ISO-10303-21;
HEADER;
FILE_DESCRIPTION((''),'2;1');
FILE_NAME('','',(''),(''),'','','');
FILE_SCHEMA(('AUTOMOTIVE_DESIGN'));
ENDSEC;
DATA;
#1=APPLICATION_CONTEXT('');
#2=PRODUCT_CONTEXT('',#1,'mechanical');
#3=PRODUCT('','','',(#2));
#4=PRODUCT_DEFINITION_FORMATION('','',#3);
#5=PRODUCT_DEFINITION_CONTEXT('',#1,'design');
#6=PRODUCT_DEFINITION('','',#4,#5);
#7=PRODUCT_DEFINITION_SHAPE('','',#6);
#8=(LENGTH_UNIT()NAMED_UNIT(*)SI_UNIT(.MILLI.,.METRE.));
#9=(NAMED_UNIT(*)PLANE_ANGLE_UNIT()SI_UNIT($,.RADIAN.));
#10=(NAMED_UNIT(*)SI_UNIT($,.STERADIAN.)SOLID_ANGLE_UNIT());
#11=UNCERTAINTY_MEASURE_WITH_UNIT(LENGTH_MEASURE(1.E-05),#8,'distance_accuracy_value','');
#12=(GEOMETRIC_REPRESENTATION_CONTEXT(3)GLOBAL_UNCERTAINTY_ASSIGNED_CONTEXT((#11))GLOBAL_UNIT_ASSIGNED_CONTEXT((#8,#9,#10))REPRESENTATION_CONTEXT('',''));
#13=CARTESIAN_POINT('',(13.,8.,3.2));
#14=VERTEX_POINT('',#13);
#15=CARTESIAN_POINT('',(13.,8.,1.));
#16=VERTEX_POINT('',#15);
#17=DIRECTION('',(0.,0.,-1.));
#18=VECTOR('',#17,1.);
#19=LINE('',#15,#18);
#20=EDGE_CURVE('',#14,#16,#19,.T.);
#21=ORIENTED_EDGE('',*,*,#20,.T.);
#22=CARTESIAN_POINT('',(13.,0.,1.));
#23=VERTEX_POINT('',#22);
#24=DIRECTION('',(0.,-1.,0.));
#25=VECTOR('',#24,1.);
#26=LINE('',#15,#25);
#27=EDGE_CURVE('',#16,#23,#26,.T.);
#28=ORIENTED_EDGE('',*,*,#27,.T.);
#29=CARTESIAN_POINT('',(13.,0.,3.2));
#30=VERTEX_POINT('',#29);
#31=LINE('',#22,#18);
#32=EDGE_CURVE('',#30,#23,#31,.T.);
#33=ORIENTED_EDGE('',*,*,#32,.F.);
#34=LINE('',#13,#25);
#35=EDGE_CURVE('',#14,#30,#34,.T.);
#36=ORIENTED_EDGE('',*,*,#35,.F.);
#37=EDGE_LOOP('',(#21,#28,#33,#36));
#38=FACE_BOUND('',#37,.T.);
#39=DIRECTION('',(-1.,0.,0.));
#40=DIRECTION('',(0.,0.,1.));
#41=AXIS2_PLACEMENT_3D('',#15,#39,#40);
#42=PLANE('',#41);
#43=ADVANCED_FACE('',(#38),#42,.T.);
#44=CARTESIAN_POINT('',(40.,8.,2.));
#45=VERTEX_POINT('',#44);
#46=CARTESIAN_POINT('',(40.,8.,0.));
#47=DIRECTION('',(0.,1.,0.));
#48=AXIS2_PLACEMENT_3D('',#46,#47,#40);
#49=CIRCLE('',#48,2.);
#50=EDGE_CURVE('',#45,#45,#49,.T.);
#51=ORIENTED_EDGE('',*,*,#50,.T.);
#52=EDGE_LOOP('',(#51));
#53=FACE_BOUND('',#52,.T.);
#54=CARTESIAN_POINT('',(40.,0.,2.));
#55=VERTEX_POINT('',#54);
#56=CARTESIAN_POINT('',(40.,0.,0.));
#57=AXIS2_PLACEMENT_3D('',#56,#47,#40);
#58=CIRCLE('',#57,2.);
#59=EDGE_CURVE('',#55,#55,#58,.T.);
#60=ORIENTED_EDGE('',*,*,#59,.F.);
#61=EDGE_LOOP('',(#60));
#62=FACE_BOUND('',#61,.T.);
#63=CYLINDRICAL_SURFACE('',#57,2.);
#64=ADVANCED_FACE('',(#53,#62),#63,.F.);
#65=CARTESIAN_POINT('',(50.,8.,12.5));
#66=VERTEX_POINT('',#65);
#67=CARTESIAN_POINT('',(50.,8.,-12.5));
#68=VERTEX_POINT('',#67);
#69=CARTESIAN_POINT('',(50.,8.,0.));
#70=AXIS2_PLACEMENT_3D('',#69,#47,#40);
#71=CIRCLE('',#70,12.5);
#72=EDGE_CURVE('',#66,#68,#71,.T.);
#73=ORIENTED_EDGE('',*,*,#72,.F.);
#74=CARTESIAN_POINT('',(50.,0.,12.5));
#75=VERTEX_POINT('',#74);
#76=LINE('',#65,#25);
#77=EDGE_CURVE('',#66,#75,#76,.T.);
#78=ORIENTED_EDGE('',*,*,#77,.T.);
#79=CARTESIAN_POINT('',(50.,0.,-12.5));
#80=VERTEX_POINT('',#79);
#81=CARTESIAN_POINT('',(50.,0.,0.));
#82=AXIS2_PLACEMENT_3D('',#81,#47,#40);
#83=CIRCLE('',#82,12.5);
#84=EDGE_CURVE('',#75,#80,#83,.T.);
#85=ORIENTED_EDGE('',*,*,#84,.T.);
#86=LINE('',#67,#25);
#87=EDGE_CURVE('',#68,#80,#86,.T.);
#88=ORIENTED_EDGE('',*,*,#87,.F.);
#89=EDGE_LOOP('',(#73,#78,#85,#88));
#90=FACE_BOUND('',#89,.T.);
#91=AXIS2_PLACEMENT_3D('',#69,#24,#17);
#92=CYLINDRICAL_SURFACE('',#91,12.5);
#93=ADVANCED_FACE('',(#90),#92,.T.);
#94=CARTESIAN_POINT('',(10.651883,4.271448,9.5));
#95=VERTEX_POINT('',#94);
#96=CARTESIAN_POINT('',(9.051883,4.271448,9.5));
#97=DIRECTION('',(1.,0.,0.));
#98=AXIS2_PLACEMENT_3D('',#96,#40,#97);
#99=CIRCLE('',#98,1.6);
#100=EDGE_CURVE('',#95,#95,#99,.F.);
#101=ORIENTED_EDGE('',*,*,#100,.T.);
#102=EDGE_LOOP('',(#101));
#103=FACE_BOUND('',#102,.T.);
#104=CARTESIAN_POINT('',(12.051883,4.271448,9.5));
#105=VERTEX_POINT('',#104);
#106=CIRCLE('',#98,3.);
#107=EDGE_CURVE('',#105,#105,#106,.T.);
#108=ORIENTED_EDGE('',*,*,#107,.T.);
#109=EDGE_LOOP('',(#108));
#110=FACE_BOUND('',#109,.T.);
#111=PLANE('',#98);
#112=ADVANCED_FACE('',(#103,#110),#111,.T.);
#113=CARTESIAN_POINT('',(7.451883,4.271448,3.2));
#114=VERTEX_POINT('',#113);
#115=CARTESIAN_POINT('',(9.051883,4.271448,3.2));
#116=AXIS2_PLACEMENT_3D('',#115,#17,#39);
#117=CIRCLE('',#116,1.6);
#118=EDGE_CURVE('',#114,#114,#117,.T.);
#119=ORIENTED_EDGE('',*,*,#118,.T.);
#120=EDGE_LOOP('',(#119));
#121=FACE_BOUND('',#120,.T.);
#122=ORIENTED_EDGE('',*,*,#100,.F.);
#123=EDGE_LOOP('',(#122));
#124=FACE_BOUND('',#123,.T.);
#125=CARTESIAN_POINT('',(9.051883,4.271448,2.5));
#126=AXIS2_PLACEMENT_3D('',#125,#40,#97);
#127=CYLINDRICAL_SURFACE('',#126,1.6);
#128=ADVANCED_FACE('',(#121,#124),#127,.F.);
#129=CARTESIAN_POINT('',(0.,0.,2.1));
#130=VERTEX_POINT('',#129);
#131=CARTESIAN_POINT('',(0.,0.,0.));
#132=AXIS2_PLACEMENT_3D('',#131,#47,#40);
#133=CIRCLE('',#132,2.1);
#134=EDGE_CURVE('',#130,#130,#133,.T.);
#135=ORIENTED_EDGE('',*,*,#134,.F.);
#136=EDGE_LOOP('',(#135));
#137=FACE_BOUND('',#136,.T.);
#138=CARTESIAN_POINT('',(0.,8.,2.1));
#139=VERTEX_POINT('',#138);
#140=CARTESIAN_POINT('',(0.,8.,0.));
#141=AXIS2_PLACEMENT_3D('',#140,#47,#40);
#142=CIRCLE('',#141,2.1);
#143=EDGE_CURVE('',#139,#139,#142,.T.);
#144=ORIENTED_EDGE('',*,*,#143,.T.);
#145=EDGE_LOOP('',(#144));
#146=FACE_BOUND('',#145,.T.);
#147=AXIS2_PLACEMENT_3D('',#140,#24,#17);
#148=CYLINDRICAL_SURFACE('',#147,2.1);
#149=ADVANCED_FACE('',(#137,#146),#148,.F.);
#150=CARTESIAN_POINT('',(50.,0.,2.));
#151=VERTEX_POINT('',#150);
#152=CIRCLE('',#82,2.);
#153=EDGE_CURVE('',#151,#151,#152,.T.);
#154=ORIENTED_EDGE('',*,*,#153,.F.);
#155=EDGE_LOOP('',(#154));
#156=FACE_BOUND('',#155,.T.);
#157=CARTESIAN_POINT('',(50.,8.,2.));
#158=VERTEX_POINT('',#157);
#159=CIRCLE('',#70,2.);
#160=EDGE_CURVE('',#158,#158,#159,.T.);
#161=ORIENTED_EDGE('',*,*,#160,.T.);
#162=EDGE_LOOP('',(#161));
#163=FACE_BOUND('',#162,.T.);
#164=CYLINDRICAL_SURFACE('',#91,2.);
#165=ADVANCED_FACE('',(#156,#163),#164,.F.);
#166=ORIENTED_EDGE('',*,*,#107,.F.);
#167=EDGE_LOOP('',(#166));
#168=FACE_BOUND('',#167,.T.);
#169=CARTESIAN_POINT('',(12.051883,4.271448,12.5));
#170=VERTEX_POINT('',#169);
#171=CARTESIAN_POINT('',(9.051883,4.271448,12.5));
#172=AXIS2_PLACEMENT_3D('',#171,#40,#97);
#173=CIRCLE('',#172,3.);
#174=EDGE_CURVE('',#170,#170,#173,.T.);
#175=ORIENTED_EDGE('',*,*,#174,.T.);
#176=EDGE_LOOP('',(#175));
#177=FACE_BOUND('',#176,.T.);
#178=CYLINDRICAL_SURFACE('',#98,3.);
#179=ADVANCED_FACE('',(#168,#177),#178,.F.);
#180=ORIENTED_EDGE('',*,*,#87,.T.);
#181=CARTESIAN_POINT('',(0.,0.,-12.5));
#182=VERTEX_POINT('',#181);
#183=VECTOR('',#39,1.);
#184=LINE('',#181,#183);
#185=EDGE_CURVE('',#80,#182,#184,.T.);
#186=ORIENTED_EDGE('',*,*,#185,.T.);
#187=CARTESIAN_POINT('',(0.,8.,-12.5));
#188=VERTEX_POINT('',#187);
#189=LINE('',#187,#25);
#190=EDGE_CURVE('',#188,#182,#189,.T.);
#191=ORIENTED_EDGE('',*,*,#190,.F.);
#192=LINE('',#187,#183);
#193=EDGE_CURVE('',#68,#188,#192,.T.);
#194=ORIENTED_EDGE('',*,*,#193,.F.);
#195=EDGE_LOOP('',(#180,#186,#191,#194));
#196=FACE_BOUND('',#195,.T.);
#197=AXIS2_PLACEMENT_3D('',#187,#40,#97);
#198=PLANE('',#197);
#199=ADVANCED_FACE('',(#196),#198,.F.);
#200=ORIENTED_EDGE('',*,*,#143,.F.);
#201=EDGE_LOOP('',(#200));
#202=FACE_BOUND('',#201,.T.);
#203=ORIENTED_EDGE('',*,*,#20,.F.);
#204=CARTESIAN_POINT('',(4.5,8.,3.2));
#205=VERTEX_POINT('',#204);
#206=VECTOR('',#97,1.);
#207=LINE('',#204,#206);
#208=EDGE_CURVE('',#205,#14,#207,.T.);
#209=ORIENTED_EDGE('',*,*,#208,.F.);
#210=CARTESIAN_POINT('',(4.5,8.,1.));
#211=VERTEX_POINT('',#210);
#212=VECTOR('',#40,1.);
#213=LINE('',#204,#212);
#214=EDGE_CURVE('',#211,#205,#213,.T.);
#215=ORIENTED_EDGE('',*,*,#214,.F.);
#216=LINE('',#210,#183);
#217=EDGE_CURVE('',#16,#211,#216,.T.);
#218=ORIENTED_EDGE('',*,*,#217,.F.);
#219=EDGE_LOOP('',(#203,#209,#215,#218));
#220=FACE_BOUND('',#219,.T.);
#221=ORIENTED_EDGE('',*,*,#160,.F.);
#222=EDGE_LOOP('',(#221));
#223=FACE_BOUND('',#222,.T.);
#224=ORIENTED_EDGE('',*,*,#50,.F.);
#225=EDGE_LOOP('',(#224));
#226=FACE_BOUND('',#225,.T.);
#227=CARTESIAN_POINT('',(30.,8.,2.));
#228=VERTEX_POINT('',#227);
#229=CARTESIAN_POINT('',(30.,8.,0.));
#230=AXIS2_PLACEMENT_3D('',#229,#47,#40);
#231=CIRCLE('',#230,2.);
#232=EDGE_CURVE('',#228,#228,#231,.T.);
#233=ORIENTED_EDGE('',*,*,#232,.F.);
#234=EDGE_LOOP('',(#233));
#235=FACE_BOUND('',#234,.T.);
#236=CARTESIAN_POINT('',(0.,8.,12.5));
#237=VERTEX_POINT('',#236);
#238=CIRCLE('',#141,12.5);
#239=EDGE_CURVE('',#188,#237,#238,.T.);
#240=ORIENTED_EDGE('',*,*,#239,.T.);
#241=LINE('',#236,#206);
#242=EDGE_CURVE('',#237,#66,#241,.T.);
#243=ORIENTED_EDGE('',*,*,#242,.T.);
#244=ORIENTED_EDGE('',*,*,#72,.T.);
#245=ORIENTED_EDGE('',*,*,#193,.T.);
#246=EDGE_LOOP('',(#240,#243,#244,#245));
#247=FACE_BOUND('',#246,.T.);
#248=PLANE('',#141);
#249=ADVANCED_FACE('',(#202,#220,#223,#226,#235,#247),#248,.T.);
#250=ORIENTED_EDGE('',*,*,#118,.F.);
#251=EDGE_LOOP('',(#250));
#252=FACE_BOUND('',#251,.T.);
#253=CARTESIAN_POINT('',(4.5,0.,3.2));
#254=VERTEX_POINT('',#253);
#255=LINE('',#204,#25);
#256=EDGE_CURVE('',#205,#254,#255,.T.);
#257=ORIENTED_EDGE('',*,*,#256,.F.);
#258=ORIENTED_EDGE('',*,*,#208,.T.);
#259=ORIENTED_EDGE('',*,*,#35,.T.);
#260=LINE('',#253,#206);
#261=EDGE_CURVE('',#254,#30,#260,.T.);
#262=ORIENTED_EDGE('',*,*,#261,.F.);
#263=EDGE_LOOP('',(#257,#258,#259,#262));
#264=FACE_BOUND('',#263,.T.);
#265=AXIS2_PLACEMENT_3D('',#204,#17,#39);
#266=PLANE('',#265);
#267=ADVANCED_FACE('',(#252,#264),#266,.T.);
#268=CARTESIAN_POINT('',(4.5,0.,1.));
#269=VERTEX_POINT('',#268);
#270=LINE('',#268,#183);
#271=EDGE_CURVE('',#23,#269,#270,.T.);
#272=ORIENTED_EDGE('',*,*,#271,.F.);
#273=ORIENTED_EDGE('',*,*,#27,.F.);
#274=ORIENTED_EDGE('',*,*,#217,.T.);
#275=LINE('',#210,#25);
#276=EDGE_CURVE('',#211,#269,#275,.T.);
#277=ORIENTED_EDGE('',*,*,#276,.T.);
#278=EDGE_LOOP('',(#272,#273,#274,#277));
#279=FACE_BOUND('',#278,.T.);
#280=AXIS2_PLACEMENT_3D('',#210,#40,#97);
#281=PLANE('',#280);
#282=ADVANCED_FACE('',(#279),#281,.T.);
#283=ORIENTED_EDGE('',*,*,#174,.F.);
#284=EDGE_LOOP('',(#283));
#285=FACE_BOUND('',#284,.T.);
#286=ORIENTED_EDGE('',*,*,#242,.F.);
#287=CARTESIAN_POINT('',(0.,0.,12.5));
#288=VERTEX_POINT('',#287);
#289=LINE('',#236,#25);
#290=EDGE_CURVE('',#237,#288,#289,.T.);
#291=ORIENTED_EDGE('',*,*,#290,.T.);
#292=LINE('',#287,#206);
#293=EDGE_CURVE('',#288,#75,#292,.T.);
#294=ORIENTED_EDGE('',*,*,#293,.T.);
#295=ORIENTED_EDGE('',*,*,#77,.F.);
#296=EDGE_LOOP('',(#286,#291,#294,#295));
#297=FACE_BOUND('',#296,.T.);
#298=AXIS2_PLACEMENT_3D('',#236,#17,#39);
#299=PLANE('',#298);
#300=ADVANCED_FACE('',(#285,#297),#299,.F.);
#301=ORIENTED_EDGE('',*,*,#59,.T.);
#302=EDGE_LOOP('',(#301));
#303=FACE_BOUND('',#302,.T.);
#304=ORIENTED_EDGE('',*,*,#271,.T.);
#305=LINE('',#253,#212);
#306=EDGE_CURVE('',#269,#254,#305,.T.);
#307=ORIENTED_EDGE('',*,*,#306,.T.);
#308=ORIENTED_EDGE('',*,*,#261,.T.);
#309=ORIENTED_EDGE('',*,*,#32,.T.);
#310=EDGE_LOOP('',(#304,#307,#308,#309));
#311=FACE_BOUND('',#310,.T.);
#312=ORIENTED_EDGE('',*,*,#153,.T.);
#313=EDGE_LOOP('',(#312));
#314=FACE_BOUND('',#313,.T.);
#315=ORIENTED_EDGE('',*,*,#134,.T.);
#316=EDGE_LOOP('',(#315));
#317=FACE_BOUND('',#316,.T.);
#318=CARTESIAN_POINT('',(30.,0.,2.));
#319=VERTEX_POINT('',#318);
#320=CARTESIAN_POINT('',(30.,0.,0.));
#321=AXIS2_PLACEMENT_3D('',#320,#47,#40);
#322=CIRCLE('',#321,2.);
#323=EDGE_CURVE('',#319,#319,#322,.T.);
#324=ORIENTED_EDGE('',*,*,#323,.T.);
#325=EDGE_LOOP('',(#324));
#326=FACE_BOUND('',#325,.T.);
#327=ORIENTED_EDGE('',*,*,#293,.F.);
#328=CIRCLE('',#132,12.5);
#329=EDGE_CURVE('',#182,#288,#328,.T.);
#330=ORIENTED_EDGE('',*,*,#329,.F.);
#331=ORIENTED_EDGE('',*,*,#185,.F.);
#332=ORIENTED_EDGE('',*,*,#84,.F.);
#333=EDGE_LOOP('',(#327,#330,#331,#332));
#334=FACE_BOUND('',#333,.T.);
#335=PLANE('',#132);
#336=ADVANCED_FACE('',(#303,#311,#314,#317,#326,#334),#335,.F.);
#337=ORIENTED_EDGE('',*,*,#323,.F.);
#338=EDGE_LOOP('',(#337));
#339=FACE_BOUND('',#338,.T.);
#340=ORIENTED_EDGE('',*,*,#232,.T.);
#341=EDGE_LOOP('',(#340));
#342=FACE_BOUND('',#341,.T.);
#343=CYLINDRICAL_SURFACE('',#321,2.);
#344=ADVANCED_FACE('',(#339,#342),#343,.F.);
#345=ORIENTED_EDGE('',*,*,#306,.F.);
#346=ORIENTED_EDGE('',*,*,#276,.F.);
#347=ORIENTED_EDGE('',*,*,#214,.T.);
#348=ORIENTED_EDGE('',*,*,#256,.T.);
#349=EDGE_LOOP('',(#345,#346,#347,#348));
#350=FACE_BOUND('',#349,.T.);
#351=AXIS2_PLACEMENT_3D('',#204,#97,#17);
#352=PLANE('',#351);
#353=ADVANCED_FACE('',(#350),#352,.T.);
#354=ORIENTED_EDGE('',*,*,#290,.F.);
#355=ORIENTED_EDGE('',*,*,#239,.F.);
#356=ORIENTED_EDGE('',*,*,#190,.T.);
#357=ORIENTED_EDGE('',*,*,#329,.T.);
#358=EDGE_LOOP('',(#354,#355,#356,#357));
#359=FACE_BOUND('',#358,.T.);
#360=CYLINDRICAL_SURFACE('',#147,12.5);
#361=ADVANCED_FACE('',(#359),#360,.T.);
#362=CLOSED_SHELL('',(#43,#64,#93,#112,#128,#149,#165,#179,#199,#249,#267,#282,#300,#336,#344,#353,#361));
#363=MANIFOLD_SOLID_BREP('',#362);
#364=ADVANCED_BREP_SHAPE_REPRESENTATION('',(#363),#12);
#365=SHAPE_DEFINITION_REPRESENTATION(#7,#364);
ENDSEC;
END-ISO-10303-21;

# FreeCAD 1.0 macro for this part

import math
import FreeCAD as App
import Part
import Sketcher
from FreeCAD import Vector
Q = App.Units.Quantity


def add_polygon(sketch, points):
    """Adds a closed chain of lines whose ends are joined by coincident constraints."""
    first, n = sketch.GeometryCount, len(points)
    for a, b in zip(points, points[1:] + points[:1]):
        sketch.addGeometry(Part.LineSegment(App.Vector(*a, 0), App.Vector(*b, 0)), False)
    for i in range(n):
        sketch.addConstraint(Sketcher.Constraint("Coincident", first + i, 2, first + (i + 1) % n, 1))

doc = App.newDocument("Part")
body = doc.addObject("PartDesign::Body", "Body")

# Sketch on XZ plane
sketch1 = body.newObject("Sketcher::SketchObject", "Sketch")
sketch1.AttachmentSupport = (doc.getObject("XZ_Plane"), [""])
sketch1.MapMode = "FlatFace"
sketch1.addGeometry(Part.LineSegment(Vector(50, -12.5, 0), Vector(0, -12.5, 0)), False)  # 0
sketch1.addGeometry(Part.ArcOfCircle(Part.Circle(Vector(0, 0, 0), Vector(0, 0, 1), 12.5), math.radians(90), math.radians(270)), False)  # 1
sketch1.addGeometry(Part.LineSegment(Vector(0, 12.5, 0), Vector(50, 12.5, 0)), False)  # 2
sketch1.addGeometry(Part.ArcOfCircle(Part.Circle(Vector(50, 0, 0), Vector(0, 0, 1), 12.5), math.radians(-90), math.radians(90)), False)  # 3
add_polygon(sketch1, [(4.5, 3.2), (4.5, 1), (13, 1), (13, 3.2)])  # lines 4-7
sketch1.addGeometry(Part.Circle(Vector(50, 0, 0), Vector(0, 0, 1), 2), False)  # 8
sketch1.addGeometry(Part.Circle(Vector(0, 0, 0), Vector(0, 0, 1), 2.1), False)  # 9
sketch1.addConstraint(Sketcher.Constraint("Tangent", 0, 2, 1, 2))
sketch1.addConstraint(Sketcher.Constraint("Tangent", 1, 1, 2, 1))
sketch1.addConstraint(Sketcher.Constraint("Tangent", 2, 2, 3, 2))
sketch1.addConstraint(Sketcher.Constraint("Tangent", 3, 1, 0, 1))
sketch1.addConstraint(Sketcher.Constraint("Horizontal", 0))
sketch1.addConstraint(Sketcher.Constraint("Horizontal", 2))
sketch1.addConstraint(Sketcher.Constraint("Vertical", 4))
sketch1.addConstraint(Sketcher.Constraint("Horizontal", 5))
sketch1.addConstraint(Sketcher.Constraint("Vertical", 6))
sketch1.addConstraint(Sketcher.Constraint("Horizontal", 7))
sketch1.addConstraint(Sketcher.Constraint("Coincident", 1, 3, -1, 1))
sketch1.addConstraint(Sketcher.Constraint("Coincident", 9, 3, -1, 1))
sketch1.addConstraint(Sketcher.Constraint("Coincident", 8, 3, 3, 3))
sketch1.addConstraint(Sketcher.Constraint("Diameter", 8, Q("4 mm")))
sketch1.addConstraint(Sketcher.Constraint("Diameter", 9, Q("4.2 mm")))
sketch1.addConstraint(Sketcher.Constraint("Radius", 1, Q("12.5 mm")))
sketch1.addConstraint(Sketcher.Constraint("DistanceX", 0, 2, 0, 1, Q("50 mm")))
sketch1.addConstraint(Sketcher.Constraint("DistanceX", 5, 1, 5, 2, Q("8.5 mm")))
sketch1.addConstraint(Sketcher.Constraint("DistanceY", 4, 2, 4, 1, Q("2.2 mm")))
sketch1.addConstraint(Sketcher.Constraint("DistanceY", -1, 1, 4, 2, Q("1 mm")))
sketch1.addConstraint(Sketcher.Constraint("DistanceX", -1, 1, 5, 2, Q("13 mm")))
pad1 = body.newObject("PartDesign::Pad", "Pad")
pad1.Profile = sketch1
pad1.Length = 8
pad1.Reversed = True

# Sketch on XZ plane
sketch2 = body.newObject("Sketcher::SketchObject", "Sketch001")
sketch2.AttachmentSupport = (doc.getObject("XZ_Plane"), [""])
sketch2.MapMode = "FlatFace"
sketch2.addGeometry(Part.Circle(Vector(40, 0, 0), Vector(0, 0, 1), 2), False)
sketch2.addGeometry(Part.Circle(Vector(30, 0, 0), Vector(0, 0, 1), 2), False)
sketch2.addGeometry(Part.Circle(Vector(50, 0, 0), Vector(0, 0, 1), 2), False)
sketch2.addConstraint(Sketcher.Constraint("Equal", 0, 1))
sketch2.addConstraint(Sketcher.Constraint("Equal", 1, 2))
sketch2.addConstraint(Sketcher.Constraint("PointOnObject", 0, 3, -1))
sketch2.addConstraint(Sketcher.Constraint("PointOnObject", 1, 3, -1))
sketch2.addConstraint(Sketcher.Constraint("PointOnObject", 2, 3, -1))
sketch2.addConstraint(Sketcher.Constraint("Diameter", 0, Q("4 mm")))
sketch2.addConstraint(Sketcher.Constraint("DistanceX", -1, 1, 0, 3, Q("40 mm")))
sketch2.addConstraint(Sketcher.Constraint("DistanceX", -1, 1, 1, 3, Q("30 mm")))
sketch2.addConstraint(Sketcher.Constraint("DistanceX", -1, 1, 2, 3, Q("50 mm")))
pocket1 = body.newObject("PartDesign::Pocket", "Pocket")
pocket1.Profile = sketch2
pocket1.Length = 8

# Sketch on XY plane
sketch3 = body.newObject("Sketcher::SketchObject", "Sketch002")
sketch3.AttachmentSupport = (doc.getObject("XY_Plane"), [""])
sketch3.MapMode = "FlatFace"
sketch3.AttachmentOffset = App.Placement(Vector(0, 0, 12.5), App.Rotation())
sketch3.addGeometry(Part.Circle(Vector(9.1, 4.3, 0), Vector(0, 0, 1), 1.6), False)
sketch3.addConstraint(Sketcher.Constraint("Diameter", 0, Q("3.2 mm")))
sketch3.addConstraint(Sketcher.Constraint("DistanceY", -1, 1, 0, 3, Q("4.271448 mm")))
sketch3.addConstraint(Sketcher.Constraint("DistanceX", -1, 1, 0, 3, Q("9.051883 mm")))
pocket2 = body.newObject("PartDesign::Pocket", "Pocket001")
pocket2.Profile = sketch3
pocket2.Length = 10

# Sketch on XY plane
sketch4 = body.newObject("Sketcher::SketchObject", "Sketch003")
sketch4.AttachmentSupport = (doc.getObject("XY_Plane"), [""])
sketch4.MapMode = "FlatFace"
sketch4.AttachmentOffset = App.Placement(Vector(0, 0, 12.5), App.Rotation())
sketch4.addGeometry(Part.Circle(Vector(9.1, 4.3, 0), Vector(0, 0, 1), 3), False)
sketch4.addConstraint(Sketcher.Constraint("Diameter", 0, Q("6 mm")))
sketch4.addConstraint(Sketcher.Constraint("DistanceY", -1, 1, 0, 3, Q("4.271448 mm")))
sketch4.addConstraint(Sketcher.Constraint("DistanceX", -1, 1, 0, 3, Q("9.051883 mm")))
pocket3 = body.newObject("PartDesign::Pocket", "Pocket002")
pocket3.Profile = sketch4
pocket3.Length = 3

doc.recompute()
